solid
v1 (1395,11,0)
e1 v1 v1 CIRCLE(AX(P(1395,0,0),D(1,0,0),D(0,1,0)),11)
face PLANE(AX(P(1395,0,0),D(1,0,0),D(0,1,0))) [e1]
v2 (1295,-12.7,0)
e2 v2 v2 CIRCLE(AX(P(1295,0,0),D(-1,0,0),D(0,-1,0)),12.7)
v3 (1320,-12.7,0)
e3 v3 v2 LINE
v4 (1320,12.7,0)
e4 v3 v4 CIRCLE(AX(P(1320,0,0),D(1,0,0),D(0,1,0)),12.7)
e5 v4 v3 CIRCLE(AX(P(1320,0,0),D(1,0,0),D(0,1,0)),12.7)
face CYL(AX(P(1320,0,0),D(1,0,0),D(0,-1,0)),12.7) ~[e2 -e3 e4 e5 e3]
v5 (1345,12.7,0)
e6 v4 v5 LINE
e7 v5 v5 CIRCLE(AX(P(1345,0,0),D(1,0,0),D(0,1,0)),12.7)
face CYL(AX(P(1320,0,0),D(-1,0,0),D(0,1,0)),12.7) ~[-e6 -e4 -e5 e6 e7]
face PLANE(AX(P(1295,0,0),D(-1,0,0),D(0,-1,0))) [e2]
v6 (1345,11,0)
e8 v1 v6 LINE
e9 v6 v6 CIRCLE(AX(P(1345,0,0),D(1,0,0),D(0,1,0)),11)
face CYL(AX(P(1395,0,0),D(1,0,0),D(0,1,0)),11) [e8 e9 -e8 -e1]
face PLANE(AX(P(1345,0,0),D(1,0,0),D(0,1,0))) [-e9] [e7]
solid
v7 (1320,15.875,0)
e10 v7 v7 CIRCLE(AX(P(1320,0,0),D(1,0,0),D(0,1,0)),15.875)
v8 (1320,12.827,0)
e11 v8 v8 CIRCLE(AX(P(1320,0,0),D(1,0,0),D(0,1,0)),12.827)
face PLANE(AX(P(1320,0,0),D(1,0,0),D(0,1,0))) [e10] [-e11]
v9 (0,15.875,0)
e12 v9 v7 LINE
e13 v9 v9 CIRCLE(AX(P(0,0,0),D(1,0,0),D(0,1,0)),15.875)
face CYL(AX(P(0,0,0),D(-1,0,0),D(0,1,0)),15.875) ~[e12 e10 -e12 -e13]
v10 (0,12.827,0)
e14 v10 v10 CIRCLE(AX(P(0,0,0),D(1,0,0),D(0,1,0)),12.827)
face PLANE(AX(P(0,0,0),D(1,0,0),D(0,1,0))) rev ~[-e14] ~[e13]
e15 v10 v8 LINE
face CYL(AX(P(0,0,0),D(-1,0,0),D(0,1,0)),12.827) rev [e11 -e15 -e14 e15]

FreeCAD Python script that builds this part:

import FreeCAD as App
import Part
import Sketcher

V = App.Vector
Q = App.Units.Quantity

doc = App.newDocument("Part")
body = doc.addObject("PartDesign::Body", "Body")

sketch1 = doc.addObject("Sketcher::SketchObject", "Sketch")
body.addObject(sketch1)
sketch1.AttachmentSupport = (doc.YZ_Plane, [""])
sketch1.MapMode = "FlatFace"
sketch1.addGeometry(Part.Circle(V(0, 0, 0), V(0, 0, 1), 16), False)
sketch1.addGeometry(Part.Circle(V(0, 0, 0), V(0, 0, 1), 13), False)
sketch1.addConstraint(Sketcher.Constraint("Coincident", 0, 3, -1, 1))
sketch1.addConstraint(Sketcher.Constraint("Coincident", 1, 3, -1, 1))
sketch1.addConstraint(Sketcher.Constraint("Diameter", 0, Q("31.75 mm")))
sketch1.addConstraint(Sketcher.Constraint("Diameter", 1, Q("25.654 mm")))
pad1 = doc.addObject("PartDesign::Pad", "Pad")
body.addObject(pad1)
pad1.Profile = sketch1
pad1.Length = 1320
body2 = doc.addObject("PartDesign::Body", "Body001")

sketch2 = doc.addObject("Sketcher::SketchObject", "Sketch001")
body2.addObject(sketch2)
sketch2.AttachmentSupport = (doc.getObject("YZ_Plane001"), [""])
sketch2.MapMode = "FlatFace"
sketch2.AttachmentOffset = App.Placement(V(0, 0, 1320), App.Rotation())
sketch2.addGeometry(Part.Circle(V(0, 0, 0), V(0, 0, 1), 13), False)
sketch2.addConstraint(Sketcher.Constraint("Coincident", 0, 3, -1, 1))
sketch2.addConstraint(Sketcher.Constraint("Diameter", 0, Q("25.4 mm")))
pad2 = doc.addObject("PartDesign::Pad", "Pad001")
body2.addObject(pad2)
pad2.Profile = sketch2
pad2.Length = 75

sketch3 = doc.addObject("Sketcher::SketchObject", "Sketch002")
body2.addObject(sketch3)
sketch3.AttachmentSupport = (doc.getObject("YZ_Plane001"), [""])
sketch3.MapMode = "FlatFace"
sketch3.AttachmentOffset = App.Placement(V(0, 0, 1395), App.Rotation())
sketch3.addGeometry(Part.Circle(V(0, 0, 0), V(0, 0, 1), 13), False)
sketch3.addGeometry(Part.Circle(V(0, 0, 0), V(0, 0, 1), 11), False)
sketch3.addConstraint(Sketcher.Constraint("Coincident", 0, 3, -1, 1))
sketch3.addConstraint(Sketcher.Constraint("Coincident", 1, 3, -1, 1))
sketch3.addConstraint(Sketcher.Constraint("Diameter", 1, Q("22 mm")))
sketch3.addConstraint(Sketcher.Constraint("Diameter", 0, Q("25.4 mm")))
pocket1 = doc.addObject("PartDesign::Pocket", "Pocket")
body2.addObject(pocket1)
pocket1.Profile = sketch3
pocket1.Length = 50

sketch4 = doc.addObject("Sketcher::SketchObject", "Sketch003")
body2.addObject(sketch4)
sketch4.AttachmentSupport = (doc.getObject("YZ_Plane001"), [""])
sketch4.MapMode = "FlatFace"
sketch4.AttachmentOffset = App.Placement(V(0, 0, 1320), App.Rotation())
sketch4.addGeometry(Part.Circle(V(0, 0, 0), V(0, 0, 1), 13), False)
sketch4.addConstraint(Sketcher.Constraint("Coincident", 0, 3, -1, 1))
sketch4.addConstraint(Sketcher.Constraint("Diameter", 0, Q("25.4 mm")))
pad3 = doc.addObject("PartDesign::Pad", "Pad002")
body2.addObject(pad3)
pad3.Profile = sketch4
pad3.Length = 25
pad3.Reversed = True

doc.recompute()
